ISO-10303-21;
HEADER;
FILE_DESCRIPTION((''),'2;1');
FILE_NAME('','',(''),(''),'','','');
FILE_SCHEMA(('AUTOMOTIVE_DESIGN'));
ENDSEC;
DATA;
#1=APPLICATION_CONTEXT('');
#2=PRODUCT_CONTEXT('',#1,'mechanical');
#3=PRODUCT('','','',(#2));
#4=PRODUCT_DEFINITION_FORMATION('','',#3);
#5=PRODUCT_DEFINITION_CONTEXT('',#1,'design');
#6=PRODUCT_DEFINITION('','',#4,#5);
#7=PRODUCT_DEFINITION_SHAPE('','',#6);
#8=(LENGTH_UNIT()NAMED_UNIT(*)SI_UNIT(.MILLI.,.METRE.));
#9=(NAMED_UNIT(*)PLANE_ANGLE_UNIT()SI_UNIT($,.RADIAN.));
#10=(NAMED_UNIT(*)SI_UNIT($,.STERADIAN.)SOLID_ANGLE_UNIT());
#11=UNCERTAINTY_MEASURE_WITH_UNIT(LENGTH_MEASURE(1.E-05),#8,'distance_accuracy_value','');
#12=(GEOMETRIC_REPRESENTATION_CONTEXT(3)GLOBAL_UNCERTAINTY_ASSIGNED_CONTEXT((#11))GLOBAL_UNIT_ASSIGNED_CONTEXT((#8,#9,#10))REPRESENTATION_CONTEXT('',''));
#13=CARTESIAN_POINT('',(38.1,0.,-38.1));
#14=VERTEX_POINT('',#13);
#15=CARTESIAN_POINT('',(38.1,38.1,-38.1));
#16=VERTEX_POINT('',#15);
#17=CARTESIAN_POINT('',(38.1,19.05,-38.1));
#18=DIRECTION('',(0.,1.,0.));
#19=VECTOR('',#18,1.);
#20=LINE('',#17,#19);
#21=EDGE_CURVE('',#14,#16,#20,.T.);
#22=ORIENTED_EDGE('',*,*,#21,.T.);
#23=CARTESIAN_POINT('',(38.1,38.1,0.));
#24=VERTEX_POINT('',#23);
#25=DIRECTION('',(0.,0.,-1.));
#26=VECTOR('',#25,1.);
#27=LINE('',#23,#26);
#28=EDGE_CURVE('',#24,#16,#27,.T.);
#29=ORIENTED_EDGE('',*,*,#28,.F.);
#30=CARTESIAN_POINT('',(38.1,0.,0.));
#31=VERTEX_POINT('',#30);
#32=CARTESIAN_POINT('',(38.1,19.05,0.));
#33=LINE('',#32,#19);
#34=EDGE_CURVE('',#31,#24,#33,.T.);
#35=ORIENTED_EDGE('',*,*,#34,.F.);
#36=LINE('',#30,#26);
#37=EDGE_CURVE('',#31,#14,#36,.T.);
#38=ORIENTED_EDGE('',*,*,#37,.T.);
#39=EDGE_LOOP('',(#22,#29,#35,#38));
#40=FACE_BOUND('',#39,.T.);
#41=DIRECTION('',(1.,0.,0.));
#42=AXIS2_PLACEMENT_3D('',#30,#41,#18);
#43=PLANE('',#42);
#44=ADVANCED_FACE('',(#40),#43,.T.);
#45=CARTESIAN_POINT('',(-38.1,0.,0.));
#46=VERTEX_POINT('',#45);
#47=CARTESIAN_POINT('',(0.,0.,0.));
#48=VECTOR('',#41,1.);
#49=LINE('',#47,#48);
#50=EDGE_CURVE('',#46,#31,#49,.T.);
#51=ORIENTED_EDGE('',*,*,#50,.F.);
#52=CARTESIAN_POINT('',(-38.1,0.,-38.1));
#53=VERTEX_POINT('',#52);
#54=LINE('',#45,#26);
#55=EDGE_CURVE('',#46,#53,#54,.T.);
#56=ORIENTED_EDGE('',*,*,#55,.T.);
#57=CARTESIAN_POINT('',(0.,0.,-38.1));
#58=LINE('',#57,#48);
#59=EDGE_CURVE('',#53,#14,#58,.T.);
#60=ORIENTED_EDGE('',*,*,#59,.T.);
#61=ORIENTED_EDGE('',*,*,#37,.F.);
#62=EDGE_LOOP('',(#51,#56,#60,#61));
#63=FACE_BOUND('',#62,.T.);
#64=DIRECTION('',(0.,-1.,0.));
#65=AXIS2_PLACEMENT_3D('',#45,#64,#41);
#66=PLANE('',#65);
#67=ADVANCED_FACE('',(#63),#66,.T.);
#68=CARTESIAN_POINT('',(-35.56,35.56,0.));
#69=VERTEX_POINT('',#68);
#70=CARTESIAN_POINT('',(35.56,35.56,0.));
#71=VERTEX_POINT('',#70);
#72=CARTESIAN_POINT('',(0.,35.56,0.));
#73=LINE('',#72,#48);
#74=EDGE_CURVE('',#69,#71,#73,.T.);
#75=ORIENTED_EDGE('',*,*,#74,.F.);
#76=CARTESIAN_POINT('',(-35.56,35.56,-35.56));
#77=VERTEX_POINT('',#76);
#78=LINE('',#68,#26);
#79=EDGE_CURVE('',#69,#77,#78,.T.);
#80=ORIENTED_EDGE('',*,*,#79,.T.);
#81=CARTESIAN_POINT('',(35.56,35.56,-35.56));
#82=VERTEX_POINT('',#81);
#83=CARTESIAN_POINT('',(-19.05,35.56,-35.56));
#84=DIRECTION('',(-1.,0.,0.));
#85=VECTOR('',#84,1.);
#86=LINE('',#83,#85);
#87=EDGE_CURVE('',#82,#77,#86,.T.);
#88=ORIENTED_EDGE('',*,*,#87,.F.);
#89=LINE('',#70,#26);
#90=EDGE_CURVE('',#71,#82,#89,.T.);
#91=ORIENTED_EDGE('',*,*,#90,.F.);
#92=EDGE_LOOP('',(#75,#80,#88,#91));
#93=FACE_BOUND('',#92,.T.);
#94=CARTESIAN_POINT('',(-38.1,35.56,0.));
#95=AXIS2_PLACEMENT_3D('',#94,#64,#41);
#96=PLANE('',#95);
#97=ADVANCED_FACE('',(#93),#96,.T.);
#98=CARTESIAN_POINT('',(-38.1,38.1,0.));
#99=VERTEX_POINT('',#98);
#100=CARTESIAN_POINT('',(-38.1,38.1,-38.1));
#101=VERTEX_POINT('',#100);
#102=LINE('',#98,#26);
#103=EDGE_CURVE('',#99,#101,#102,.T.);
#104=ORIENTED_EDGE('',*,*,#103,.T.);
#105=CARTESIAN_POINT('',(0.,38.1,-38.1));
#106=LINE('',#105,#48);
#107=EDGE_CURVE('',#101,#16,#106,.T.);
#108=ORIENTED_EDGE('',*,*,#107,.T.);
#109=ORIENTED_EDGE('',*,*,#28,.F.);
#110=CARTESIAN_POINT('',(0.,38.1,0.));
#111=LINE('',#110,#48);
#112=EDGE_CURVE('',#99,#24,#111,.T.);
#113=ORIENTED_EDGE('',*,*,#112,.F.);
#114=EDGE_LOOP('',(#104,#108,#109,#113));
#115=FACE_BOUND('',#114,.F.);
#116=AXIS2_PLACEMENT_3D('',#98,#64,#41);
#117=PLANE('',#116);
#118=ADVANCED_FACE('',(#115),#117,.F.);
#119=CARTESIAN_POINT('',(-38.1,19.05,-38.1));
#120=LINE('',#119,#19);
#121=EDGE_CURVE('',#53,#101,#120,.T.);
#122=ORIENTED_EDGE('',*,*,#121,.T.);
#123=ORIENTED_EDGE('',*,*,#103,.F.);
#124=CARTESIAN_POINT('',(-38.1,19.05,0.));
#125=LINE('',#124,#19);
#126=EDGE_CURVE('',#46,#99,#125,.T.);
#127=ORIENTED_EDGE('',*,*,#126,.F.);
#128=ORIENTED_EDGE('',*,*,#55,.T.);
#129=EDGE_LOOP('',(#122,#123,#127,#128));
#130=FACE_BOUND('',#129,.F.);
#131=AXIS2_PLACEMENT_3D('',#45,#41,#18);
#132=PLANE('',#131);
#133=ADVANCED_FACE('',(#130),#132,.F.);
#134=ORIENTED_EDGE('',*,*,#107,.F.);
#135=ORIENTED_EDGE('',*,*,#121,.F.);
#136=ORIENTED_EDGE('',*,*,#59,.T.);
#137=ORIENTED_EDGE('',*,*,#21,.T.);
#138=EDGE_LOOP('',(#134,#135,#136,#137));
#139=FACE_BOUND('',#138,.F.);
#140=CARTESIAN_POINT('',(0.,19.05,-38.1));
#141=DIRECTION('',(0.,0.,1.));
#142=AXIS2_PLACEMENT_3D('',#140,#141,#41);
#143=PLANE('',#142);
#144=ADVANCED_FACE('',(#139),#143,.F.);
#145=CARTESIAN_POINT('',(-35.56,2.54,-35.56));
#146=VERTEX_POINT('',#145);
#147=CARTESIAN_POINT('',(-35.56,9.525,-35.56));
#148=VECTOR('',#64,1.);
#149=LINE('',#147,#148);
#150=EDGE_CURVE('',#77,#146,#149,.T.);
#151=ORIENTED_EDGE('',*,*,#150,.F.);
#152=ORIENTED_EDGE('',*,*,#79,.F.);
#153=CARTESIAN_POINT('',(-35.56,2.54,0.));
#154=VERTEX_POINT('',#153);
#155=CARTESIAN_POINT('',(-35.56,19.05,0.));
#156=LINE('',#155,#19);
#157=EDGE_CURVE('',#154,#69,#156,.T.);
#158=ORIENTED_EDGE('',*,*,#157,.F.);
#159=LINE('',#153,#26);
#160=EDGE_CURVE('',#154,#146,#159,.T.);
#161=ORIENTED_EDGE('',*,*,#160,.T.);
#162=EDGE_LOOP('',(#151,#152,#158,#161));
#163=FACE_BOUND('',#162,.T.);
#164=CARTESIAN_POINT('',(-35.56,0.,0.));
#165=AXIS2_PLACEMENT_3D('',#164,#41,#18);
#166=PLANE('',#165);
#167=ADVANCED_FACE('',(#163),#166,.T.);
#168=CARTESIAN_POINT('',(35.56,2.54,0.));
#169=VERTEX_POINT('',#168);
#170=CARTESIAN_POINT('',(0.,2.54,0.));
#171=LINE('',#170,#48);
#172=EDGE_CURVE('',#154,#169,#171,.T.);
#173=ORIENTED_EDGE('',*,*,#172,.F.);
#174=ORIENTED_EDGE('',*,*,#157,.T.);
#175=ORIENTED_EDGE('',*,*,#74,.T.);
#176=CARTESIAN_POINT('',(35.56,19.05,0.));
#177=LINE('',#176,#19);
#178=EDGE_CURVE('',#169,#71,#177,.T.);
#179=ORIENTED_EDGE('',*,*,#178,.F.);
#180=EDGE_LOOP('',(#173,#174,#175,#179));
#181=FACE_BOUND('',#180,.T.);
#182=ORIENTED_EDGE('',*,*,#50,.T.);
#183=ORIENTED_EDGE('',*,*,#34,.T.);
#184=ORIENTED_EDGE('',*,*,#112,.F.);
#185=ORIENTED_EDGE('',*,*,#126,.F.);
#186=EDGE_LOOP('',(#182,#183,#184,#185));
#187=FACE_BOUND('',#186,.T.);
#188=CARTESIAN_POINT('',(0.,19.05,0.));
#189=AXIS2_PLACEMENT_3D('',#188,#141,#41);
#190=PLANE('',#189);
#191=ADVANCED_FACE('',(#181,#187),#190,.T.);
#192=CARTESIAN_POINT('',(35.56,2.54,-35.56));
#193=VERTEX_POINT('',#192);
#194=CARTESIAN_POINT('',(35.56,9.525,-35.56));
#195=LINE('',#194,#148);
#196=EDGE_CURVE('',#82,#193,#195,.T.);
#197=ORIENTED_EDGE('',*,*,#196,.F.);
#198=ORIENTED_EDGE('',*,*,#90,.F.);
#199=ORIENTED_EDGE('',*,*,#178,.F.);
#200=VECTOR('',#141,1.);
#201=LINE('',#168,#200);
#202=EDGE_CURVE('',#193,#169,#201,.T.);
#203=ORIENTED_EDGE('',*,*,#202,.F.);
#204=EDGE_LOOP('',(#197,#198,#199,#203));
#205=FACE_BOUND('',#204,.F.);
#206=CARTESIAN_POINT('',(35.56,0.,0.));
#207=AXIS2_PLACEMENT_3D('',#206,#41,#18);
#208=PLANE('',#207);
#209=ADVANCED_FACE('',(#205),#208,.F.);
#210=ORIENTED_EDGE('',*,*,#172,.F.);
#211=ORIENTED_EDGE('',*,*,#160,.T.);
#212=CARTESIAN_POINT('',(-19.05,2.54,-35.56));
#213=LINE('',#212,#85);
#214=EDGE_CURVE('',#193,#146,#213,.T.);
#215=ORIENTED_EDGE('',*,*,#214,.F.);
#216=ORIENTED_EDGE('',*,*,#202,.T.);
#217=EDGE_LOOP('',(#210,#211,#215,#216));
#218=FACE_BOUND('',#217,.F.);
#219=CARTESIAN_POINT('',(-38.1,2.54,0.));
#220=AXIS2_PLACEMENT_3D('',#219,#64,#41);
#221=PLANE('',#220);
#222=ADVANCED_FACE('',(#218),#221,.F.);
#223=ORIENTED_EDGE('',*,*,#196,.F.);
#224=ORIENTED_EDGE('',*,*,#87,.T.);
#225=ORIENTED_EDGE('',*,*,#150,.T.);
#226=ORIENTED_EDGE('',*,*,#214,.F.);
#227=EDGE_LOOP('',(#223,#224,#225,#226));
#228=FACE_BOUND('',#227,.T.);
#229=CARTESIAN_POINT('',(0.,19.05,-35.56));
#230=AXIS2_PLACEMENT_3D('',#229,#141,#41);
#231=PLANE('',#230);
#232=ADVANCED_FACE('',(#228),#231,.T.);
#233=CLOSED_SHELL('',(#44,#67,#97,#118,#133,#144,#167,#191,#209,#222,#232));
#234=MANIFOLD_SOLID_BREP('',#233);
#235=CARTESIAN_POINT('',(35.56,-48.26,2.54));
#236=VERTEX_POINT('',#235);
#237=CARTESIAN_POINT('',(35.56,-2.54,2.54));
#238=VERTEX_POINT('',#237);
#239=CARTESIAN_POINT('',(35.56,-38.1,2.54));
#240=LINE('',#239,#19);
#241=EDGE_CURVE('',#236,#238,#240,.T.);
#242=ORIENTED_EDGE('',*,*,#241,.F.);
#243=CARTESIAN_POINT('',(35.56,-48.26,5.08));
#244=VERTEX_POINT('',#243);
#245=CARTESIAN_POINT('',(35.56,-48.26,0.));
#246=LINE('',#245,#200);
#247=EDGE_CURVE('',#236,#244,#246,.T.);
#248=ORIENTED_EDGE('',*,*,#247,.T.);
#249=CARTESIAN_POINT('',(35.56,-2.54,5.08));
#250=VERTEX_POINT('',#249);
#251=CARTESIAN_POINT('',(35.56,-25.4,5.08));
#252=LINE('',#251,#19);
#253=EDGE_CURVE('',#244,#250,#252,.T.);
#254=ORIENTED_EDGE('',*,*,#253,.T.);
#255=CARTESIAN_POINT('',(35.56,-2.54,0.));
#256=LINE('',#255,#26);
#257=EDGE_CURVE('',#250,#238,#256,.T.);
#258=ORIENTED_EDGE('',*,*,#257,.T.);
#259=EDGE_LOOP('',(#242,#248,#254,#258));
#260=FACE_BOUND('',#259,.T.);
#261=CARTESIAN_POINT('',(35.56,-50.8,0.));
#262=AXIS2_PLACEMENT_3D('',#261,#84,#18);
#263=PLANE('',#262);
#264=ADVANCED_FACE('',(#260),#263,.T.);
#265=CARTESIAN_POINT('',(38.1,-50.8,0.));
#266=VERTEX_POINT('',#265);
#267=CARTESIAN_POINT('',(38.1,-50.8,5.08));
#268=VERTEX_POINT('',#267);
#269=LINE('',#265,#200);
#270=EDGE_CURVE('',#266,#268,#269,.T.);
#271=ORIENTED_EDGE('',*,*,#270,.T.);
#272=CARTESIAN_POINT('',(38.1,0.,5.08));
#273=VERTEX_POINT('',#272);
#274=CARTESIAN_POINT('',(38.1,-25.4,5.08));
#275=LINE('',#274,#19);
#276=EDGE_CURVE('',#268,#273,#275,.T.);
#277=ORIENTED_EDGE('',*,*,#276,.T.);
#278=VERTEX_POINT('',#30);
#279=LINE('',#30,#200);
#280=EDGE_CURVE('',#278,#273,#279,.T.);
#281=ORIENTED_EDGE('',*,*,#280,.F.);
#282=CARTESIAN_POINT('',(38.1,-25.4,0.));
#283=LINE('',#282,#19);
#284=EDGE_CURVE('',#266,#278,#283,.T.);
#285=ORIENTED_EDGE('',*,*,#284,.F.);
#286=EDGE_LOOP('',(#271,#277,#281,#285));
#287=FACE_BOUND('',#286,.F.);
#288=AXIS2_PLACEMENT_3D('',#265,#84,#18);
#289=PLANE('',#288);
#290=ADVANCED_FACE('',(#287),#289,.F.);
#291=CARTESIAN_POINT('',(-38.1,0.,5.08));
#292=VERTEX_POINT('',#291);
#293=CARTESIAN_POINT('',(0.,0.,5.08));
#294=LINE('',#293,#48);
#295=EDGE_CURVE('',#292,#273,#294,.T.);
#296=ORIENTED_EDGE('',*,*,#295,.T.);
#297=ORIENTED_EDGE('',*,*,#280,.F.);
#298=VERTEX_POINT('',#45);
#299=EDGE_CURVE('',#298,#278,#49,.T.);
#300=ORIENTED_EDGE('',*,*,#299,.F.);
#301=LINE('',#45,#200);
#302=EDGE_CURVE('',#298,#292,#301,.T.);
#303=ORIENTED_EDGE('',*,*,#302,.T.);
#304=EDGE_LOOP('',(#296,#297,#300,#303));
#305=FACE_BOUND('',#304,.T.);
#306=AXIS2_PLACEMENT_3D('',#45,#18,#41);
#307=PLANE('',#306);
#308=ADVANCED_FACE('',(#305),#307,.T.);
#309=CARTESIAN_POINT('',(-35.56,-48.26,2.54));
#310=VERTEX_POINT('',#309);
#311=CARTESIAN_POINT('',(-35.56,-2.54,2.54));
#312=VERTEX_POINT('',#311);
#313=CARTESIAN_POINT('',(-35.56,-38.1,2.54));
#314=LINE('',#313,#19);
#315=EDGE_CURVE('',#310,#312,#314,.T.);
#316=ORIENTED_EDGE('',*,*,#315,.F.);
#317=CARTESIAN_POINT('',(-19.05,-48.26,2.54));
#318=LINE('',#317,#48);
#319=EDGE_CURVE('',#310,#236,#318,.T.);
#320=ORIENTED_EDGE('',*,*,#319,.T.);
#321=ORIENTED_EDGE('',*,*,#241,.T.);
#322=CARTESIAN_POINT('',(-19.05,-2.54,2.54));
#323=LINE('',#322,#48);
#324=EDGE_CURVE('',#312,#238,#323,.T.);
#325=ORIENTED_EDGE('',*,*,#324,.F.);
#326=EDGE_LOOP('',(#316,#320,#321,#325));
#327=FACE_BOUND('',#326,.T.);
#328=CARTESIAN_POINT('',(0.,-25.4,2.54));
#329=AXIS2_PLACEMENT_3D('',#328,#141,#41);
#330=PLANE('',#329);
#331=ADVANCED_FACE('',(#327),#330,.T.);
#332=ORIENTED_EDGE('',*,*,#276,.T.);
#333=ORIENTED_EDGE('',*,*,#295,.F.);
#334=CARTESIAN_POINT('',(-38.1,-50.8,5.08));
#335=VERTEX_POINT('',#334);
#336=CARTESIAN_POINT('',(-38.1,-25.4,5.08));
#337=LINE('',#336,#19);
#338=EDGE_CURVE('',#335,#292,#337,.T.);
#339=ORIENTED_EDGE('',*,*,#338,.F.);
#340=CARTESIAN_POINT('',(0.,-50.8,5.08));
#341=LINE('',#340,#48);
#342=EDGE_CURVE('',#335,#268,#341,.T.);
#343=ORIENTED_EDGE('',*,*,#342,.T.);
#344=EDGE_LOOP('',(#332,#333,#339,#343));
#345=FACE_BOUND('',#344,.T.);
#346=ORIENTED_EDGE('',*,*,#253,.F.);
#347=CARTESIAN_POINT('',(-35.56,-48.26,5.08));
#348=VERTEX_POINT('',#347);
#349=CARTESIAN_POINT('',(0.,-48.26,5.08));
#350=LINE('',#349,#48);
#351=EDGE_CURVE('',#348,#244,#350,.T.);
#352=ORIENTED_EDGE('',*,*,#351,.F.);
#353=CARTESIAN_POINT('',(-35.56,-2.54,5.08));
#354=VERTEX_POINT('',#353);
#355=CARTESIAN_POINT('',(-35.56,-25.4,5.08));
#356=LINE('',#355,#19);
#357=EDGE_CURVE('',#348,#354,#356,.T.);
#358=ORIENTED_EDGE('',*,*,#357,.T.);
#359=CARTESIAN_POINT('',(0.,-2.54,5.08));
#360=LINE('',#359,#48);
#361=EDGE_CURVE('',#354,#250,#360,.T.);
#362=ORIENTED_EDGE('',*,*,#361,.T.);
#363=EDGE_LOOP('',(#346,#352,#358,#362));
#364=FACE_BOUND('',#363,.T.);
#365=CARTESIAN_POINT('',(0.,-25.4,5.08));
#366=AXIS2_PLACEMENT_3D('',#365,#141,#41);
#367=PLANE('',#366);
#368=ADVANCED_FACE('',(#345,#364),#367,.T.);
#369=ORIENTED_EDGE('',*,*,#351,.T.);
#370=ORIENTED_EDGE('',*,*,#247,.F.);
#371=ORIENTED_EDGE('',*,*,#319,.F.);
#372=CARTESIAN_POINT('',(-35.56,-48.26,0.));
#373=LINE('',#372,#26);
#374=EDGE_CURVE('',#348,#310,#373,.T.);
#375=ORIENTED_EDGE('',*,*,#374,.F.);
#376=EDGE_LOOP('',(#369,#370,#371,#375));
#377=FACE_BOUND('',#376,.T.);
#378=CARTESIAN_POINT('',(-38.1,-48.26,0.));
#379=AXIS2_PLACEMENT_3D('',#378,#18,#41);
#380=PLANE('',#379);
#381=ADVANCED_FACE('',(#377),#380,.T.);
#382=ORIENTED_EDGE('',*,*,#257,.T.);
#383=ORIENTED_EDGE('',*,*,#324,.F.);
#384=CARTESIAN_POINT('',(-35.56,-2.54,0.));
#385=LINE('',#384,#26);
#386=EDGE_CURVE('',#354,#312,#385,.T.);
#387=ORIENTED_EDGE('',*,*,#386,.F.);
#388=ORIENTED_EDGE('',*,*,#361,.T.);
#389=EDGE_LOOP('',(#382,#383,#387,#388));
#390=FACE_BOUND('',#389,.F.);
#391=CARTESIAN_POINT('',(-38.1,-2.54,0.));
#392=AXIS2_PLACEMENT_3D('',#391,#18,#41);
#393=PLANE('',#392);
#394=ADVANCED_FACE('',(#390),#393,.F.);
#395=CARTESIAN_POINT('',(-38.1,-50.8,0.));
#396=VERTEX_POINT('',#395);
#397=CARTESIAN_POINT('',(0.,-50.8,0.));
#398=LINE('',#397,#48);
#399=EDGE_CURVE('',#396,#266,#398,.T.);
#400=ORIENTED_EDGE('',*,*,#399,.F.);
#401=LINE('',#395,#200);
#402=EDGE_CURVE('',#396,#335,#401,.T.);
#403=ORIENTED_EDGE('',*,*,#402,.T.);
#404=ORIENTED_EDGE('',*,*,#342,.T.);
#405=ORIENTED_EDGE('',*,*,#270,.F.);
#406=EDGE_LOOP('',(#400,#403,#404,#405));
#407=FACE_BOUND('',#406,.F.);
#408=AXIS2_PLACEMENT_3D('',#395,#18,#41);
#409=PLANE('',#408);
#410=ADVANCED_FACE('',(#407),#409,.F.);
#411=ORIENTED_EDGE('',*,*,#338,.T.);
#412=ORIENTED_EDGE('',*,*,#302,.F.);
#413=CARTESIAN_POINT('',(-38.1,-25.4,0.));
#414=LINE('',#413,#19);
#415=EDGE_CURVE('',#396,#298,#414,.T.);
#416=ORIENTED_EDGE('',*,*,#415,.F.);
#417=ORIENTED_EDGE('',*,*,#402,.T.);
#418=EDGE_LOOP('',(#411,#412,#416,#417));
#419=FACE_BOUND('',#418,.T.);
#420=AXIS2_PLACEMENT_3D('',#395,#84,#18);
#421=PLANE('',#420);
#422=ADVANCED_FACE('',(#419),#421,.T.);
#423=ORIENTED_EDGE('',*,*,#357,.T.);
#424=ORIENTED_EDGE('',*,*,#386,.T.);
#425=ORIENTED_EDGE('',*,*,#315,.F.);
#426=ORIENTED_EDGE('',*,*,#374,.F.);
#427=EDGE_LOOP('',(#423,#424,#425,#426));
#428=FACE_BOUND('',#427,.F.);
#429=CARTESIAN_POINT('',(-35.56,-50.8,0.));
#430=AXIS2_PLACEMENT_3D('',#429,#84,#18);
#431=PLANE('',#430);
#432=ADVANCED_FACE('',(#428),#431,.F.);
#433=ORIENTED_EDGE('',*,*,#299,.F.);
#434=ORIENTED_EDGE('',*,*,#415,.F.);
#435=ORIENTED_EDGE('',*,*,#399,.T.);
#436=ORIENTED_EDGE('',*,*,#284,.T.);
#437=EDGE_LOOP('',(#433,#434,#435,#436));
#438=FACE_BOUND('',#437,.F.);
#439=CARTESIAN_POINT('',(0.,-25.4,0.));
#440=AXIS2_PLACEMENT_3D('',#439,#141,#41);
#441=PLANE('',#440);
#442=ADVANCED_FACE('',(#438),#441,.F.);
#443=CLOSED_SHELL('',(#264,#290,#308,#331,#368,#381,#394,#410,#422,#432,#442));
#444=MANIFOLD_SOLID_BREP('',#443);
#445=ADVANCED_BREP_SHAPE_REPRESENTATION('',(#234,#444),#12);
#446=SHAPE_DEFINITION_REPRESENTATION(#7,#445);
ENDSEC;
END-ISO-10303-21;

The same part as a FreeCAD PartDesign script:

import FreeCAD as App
import Part
import Sketcher

V = App.Vector
Q = App.Units.Quantity


def faces_at(feature, points):
    """Names of the faces that lie closest to the given points."""
    faces = feature.Shape.Faces
    near = lambda p: min(range(len(faces)), key=lambda i: faces[i].distToShape(Part.Vertex(*p))[0])
    return sorted({f"Face{near(p) + 1}" for p in points})


def add_polygon(sketch, points):
    """Adds a closed chain of lines whose ends are joined by coincident constraints."""
    first, n = sketch.GeometryCount, len(points)
    for a, b in zip(points, points[1:] + points[:1]):
        sketch.addGeometry(Part.LineSegment(App.Vector(*a, 0), App.Vector(*b, 0)), False)
    for i in range(n):
        sketch.addConstraint(Sketcher.Constraint("Coincident", first + i, 2, first + (i + 1) % n, 1))

doc = App.newDocument("Part")
body = doc.addObject("PartDesign::Body", "Body")

# Sketch on XY plane
sketch1 = body.newObject("Sketcher::SketchObject", "Sketch")
sketch1.AttachmentSupport = (doc.getObject("XY_Plane"), [""])
sketch1.MapMode = "FlatFace"
add_polygon(sketch1, [(-38, 0), (-38, -51), (38, -51), (38, 0)])  # lines 0-3
sketch1.addConstraint([
    Sketcher.Constraint("Vertical", 0),
    Sketcher.Constraint("Horizontal", 1),
    Sketcher.Constraint("Vertical", 2),
    Sketcher.Constraint("Horizontal", 3),
    Sketcher.Constraint("Symmetric", 2, 2, 3, 2, -1, 1),
    Sketcher.Constraint("DistanceX", 1, 1, 1, 2, Q("3 in")),
    Sketcher.Constraint("DistanceY", 0, 2, 0, 1, Q("2 in")),
])
pad1 = body.newObject("PartDesign::Pad", "Pad")
pad1.Profile = sketch1
pad1.Length = Q("0.2 in")
doc.recompute()

thickness = body.newObject("PartDesign::Thickness", "Thickness")
thickness.Base = (pad1, faces_at(pad1, [(0, -25.4, 5.08)]))
thickness.Value = Q("0.1 in")
thickness.Reversed = True
thickness.Join = "Arc"
body2 = doc.addObject("PartDesign::Body", "Body001")

# Sketch on XY plane
sketch2 = body2.newObject("Sketcher::SketchObject", "Sketch001")
sketch2.AttachmentSupport = (doc.getObject("XY_Plane001"), [""])
sketch2.MapMode = "FlatFace"
add_polygon(sketch2, [(-38, 38), (-38, 0), (38, 0), (38, 38)])  # lines 0-3
sketch2.addConstraint([
    Sketcher.Constraint("Vertical", 0),
    Sketcher.Constraint("Horizontal", 1),
    Sketcher.Constraint("Vertical", 2),
    Sketcher.Constraint("Horizontal", 3),
    Sketcher.Constraint("Symmetric", 0, 2, 1, 2, -1, 1),
    Sketcher.Constraint("DistanceX", 1, 1, 1, 2, Q("3 in")),
    Sketcher.Constraint("DistanceY", 0, 2, 0, 1, Q("1.5 in")),
])
pad2 = body2.newObject("PartDesign::Pad", "Pad001")
pad2.Profile = sketch2
pad2.Length = Q("1.5 in")
pad2.Reversed = True
doc.recompute()

thickness2 = body2.newObject("PartDesign::Thickness", "Thickness001")
thickness2.Base = (pad2, faces_at(pad2, [(0, 19.05, 0)]))
thickness2.Value = Q("0.1 in")
thickness2.Reversed = True
thickness2.Join = "Arc"

doc.recompute()
